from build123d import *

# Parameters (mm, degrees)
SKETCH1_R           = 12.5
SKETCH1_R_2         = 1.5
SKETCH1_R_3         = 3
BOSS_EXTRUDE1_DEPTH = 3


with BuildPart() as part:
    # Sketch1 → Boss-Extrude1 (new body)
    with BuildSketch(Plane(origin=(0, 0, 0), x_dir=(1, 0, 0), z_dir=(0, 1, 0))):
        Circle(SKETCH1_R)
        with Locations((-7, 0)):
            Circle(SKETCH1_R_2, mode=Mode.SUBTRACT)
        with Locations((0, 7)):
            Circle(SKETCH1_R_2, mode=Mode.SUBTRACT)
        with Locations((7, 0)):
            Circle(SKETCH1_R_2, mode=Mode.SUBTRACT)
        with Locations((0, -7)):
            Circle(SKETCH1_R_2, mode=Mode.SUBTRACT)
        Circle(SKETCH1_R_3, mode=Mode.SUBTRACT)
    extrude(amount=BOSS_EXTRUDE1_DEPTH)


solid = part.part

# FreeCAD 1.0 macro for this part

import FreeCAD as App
import Part
import Sketcher
from FreeCAD import Vector

doc = App.newDocument("Part")
params = doc.addObject("Spreadsheet::Sheet", "Params")
for row, (alias, value) in enumerate([
    ("sketch1_diameter", "25 mm"),
    ("sketch1_diameter2", "3 mm"),
    ("sketch1_diameter3", "6 mm"),
    ("pad1_length", "3 mm"),
], start=1):
    params.set(f"A{row}", alias)
    params.set(f"B{row}", "=" + value)
    params.setAlias(f"B{row}", alias)

body = doc.addObject("PartDesign::Body", "Body")

# Sketch on XZ plane
sketch1 = body.newObject("Sketcher::SketchObject", "Sketch")
sketch1.AttachmentSupport = (doc.getObject("XZ_Plane"), [""])
sketch1.MapMode = "FlatFace"
sketch1.addGeometry(Part.Circle(Vector(0, 0, 0), Vector(0, 0, 1), 12.5), False)
sketch1.addGeometry(Part.Circle(Vector(0, 7, 0), Vector(0, 0, 1), 1.5), False)
sketch1.addGeometry(Part.Circle(Vector(-7, 0, 0), Vector(0, 0, 1), 1.5), False)
sketch1.addGeometry(Part.Circle(Vector(0, 0, 0), Vector(0, 0, 1), 3), False)
sketch1.addGeometry(Part.Circle(Vector(7, 0, 0), Vector(0, 0, 1), 1.5), False)
sketch1.addGeometry(Part.Circle(Vector(0, -7, 0), Vector(0, 0, 1), 1.5), False)
sketch1.addConstraint(Sketcher.Constraint("Coincident", 0, 3, -1, 1))
sketch1.addConstraint(Sketcher.Constraint("Coincident", 3, 3, -1, 1))
sketch1.addConstraint(Sketcher.Constraint("Equal", 1, 2))
sketch1.addConstraint(Sketcher.Constraint("Equal", 2, 4))
sketch1.addConstraint(Sketcher.Constraint("Equal", 4, 5))
sketch1.addConstraint(Sketcher.Constraint("Symmetric", 2, 3, 4, 3, -1, 1))
sketch1.addConstraint(Sketcher.Constraint("Symmetric", 1, 3, 5, 3, -1, 1))
sketch1.addConstraint(Sketcher.Constraint("PointOnObject", 1, 3, -2))
sketch1.addConstraint(Sketcher.Constraint("PointOnObject", 2, 3, -1))
sketch1.addConstraint(Sketcher.Constraint("Diameter", 0, 25.0))
sketch1.addConstraint(Sketcher.Constraint("Diameter", 1, 3.0))
sketch1.addConstraint(Sketcher.Constraint("Diameter", 3, 6.0))
sketch1.addConstraint(Sketcher.Constraint("DistanceY", -1, 1, 1, 3, 7.0))
sketch1.addConstraint(Sketcher.Constraint("DistanceX", 2, 3, -1, 1, 7.0))
sketch1.setExpression("Constraints[9]", "Params.sketch1_diameter")
sketch1.setExpression("Constraints[10]", "Params.sketch1_diameter2")
sketch1.setExpression("Constraints[11]", "Params.sketch1_diameter3")
pad1 = body.newObject("PartDesign::Pad", "Pad")
pad1.Profile = sketch1
pad1.setExpression("Length", "Params.pad1_length")
pad1.Reversed = True

doc.recompute()
